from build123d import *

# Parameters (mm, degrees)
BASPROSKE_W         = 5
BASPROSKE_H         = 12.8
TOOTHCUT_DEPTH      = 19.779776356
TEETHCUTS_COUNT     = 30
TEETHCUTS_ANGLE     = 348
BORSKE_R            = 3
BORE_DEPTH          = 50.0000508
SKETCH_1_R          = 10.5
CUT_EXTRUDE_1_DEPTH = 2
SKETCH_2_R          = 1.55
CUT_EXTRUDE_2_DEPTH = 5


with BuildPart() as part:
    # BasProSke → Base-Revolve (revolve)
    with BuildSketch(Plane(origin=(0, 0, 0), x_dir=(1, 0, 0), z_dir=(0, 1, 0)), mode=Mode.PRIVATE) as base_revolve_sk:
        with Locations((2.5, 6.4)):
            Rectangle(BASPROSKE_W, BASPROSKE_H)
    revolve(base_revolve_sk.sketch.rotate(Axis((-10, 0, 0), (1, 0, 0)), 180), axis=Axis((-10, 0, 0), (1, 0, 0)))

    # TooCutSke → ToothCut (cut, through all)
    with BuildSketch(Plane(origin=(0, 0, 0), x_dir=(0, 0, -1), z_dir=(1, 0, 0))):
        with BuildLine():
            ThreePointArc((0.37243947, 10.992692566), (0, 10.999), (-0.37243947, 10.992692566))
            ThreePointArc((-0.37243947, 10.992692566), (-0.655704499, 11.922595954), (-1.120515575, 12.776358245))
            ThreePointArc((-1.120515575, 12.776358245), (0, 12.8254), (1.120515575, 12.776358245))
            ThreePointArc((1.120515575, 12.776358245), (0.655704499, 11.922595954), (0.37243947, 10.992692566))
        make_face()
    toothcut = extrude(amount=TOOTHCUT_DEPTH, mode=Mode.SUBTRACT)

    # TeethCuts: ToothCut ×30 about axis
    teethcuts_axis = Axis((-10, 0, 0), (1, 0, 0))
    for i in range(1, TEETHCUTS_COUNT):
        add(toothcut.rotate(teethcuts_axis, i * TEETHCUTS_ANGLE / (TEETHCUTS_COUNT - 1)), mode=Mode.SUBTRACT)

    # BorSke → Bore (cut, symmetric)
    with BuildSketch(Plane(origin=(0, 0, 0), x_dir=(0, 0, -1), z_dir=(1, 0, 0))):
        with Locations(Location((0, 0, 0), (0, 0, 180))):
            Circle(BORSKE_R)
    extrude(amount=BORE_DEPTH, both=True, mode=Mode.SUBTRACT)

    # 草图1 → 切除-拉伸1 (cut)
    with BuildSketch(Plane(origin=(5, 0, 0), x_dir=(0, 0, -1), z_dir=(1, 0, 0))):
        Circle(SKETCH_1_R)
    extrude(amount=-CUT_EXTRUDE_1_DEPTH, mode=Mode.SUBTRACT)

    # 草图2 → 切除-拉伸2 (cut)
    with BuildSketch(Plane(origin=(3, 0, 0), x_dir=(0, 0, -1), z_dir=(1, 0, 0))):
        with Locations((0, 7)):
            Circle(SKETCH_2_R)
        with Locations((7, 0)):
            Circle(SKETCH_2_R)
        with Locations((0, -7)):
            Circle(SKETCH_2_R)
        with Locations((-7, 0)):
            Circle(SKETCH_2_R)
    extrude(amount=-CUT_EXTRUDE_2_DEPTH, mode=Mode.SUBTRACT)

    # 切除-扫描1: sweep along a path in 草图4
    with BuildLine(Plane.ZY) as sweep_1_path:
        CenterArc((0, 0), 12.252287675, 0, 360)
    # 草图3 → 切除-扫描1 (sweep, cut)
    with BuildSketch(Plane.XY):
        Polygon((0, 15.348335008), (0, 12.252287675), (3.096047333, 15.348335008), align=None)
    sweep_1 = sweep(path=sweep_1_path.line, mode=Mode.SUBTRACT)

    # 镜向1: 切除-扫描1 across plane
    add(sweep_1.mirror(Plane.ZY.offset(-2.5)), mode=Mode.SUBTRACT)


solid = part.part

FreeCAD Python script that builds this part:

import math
import FreeCAD as App
import Part
import Sketcher
Q = App.Units.Quantity


def add_polygon(sketch, points):
    """Adds a closed chain of lines whose ends are joined by coincident constraints."""
    first, n = sketch.GeometryCount, len(points)
    for a, b in zip(points, points[1:] + points[:1]):
        sketch.addGeometry(Part.LineSegment(App.Vector(*a, 0), App.Vector(*b, 0)), False)
    for i in range(n):
        sketch.addConstraint(Sketcher.Constraint("Coincident", first + i, 2, first + (i + 1) % n, 1))

doc = App.newDocument("Part")
body = doc.addObject("PartDesign::Body", "Body")

# Sketch on XZ plane
sketch1 = doc.addObject("Sketcher::SketchObject", "Sketch")
body.addObject(sketch1)
sketch1.AttachmentSupport = (doc.XZ_Plane, [""])
sketch1.MapMode = "FlatFace"
add_polygon(sketch1, [(0, -12.8), (0, 0), (5, 0), (5, -12.8)])  # lines 0-3
sketch1.addConstraint([
    Sketcher.Constraint("Vertical", 0),
    Sketcher.Constraint("Horizontal", 1),
    Sketcher.Constraint("Vertical", 2),
    Sketcher.Constraint("Horizontal", 3),
    Sketcher.Constraint("Coincident", 0, 2, -1, 1),
    Sketcher.Constraint("DistanceX", 1, 1, 1, 2, Q("5 mm")),
    Sketcher.Constraint("DistanceY", 0, 1, 0, 2, Q("12.8 mm")),
])
revolution = doc.addObject("PartDesign::Revolution", "Revolution")
body.addObject(revolution)
revolution.Profile = sketch1
revolution.ReferenceAxis = (sketch1, ["H_Axis"])
revolution.Angle = 360

# Sketch on YZ plane
sketch2 = doc.addObject("Sketcher::SketchObject", "Sketch001")
body.addObject(sketch2)
sketch2.AttachmentSupport = (doc.YZ_Plane, [""])
sketch2.MapMode = "FlatFace"
sketch2.addGeometry([
    Part.ArcOfCircle(Part.Circle(App.Vector(-0.000001, 0, 0), App.Vector(0, 0, 1), 10.999001), math.radians(-1.940475), math.radians(1.940475)),
    Part.ArcOfCircle(Part.Circle(App.Vector(10.066124, -5.08216, 0), App.Vector(0, 0, 1), 4.8), math.radians(55.623246), math.radians(78.870033)),
    Part.ArcOfCircle(Part.Circle(App.Vector(0, 0, 0), App.Vector(0, 0, 1), 12.8254), math.radians(-5.012145), math.radians(5.012145)),
    Part.ArcOfCircle(Part.Circle(App.Vector(10.066124, 5.08216, 0), App.Vector(0, 0, 1), 4.8), math.radians(-78.870033), math.radians(-55.623246)),
], False)
sketch2.addConstraint([
    Sketcher.Constraint("Coincident", 0, 1, 1, 2),
    Sketcher.Constraint("Coincident", 1, 1, 2, 1),
    Sketcher.Constraint("Coincident", 2, 2, 3, 2),
    Sketcher.Constraint("Coincident", 3, 1, 0, 2),
    Sketcher.Constraint("Coincident", 0, 3, -1, 1),
    Sketcher.Constraint("Coincident", 2, 3, -1, 1),
    Sketcher.Constraint("Equal", 1, 3),
    Sketcher.Constraint("Symmetric", 1, 3, 3, 3, -1),
    Sketcher.Constraint("Radius", 1, Q("4.8 mm")),
    Sketcher.Constraint("Radius", 0, Q("10.999001 mm")),
    Sketcher.Constraint("Radius", 2, Q("12.8254 mm")),
    Sketcher.Constraint("DistanceY", 0, 1, 3, 3, Q("5.4546 mm")),
    Sketcher.Constraint("DistanceY", 1, 3, -1, 1, Q("5.08216 mm")),
])
pocket1 = doc.addObject("PartDesign::Pocket", "Pocket")
body.addObject(pocket1)
pocket1.Profile = sketch2
pocket1.Type = "ThroughAll"
pocket1.Reversed = True
doc.recompute()

polarpattern = doc.addObject("PartDesign::PolarPattern", "PolarPattern")
body.addObject(polarpattern)
polarpattern.Originals = [pocket1]
polarpattern.Axis = (doc.X_Axis, [""])
polarpattern.Angle = 360
polarpattern.Occurrences = 30
body.Tip = polarpattern

# Sketch on YZ plane
sketch3 = doc.addObject("Sketcher::SketchObject", "Sketch002")
body.addObject(sketch3)
sketch3.AttachmentSupport = (doc.YZ_Plane, [""])
sketch3.MapMode = "FlatFace"
sketch3.addGeometry(Part.Circle(App.Vector(0, 0, 0), App.Vector(0, 0, 1), 3), False)
sketch3.addConstraint([
    Sketcher.Constraint("Coincident", 0, 3, -1, 1),
    Sketcher.Constraint("Diameter", 0, Q("6 mm")),
])
pocket2 = doc.addObject("PartDesign::Pocket", "Pocket001")
body.addObject(pocket2)
pocket2.Profile = sketch3
pocket2.Length = 100.000102
pocket2.Midplane = True

# Sketch on YZ plane
sketch4 = doc.addObject("Sketcher::SketchObject", "Sketch003")
body.addObject(sketch4)
sketch4.AttachmentSupport = (doc.YZ_Plane, [""])
sketch4.MapMode = "FlatFace"
sketch4.AttachmentOffset = App.Placement(App.Vector(0, 0, 5), App.Rotation())
sketch4.addGeometry(Part.Circle(App.Vector(0, 0, 0), App.Vector(0, 0, 1), 10.5), False)
sketch4.addConstraint([
    Sketcher.Constraint("Coincident", 0, 3, -1, 1),
    Sketcher.Constraint("Diameter", 0, Q("21 mm")),
])
pocket3 = doc.addObject("PartDesign::Pocket", "Pocket002")
body.addObject(pocket3)
pocket3.Profile = sketch4
pocket3.Length = 2

# Sketch on YZ plane
sketch5 = doc.addObject("Sketcher::SketchObject", "Sketch004")
body.addObject(sketch5)
sketch5.AttachmentSupport = (doc.YZ_Plane, [""])
sketch5.MapMode = "FlatFace"
sketch5.AttachmentOffset = App.Placement(App.Vector(0, 0, 3), App.Rotation())
sketch5.addGeometry([
    Part.Circle(App.Vector(7, 0, 0), App.Vector(0, 0, 1), 1.55),
    Part.Circle(App.Vector(0, -7, 0), App.Vector(0, 0, 1), 1.55),
    Part.Circle(App.Vector(-7, 0, 0), App.Vector(0, 0, 1), 1.55),
    Part.Circle(App.Vector(0, 7, 0), App.Vector(0, 0, 1), 1.55),
], False)
sketch5.addConstraint([
    Sketcher.Constraint("Equal", 0, 1),
    Sketcher.Constraint("Equal", 1, 2),
    Sketcher.Constraint("Equal", 2, 3),
    Sketcher.Constraint("Symmetric", 0, 3, 2, 3, -1, 1),
    Sketcher.Constraint("Symmetric", 1, 3, 3, 3, -1, 1),
    Sketcher.Constraint("PointOnObject", 0, 3, -1),
    Sketcher.Constraint("PointOnObject", 1, 3, -2),
    Sketcher.Constraint("Diameter", 0, Q("3.1 mm")),
    Sketcher.Constraint("DistanceX", -1, 1, 0, 3, Q("7 mm")),
    Sketcher.Constraint("DistanceY", 1, 3, -1, 1, Q("7 mm")),
])
pocket4 = doc.addObject("PartDesign::Pocket", "Pocket003")
body.addObject(pocket4)
pocket4.Profile = sketch5
pocket4.Length = 5

# Sketch on XY plane
sketch6 = doc.addObject("Sketcher::SketchObject", "Sketch005")
body.addObject(sketch6)
sketch6.AttachmentSupport = (doc.XY_Plane, [""])
sketch6.MapMode = "FlatFace"
add_polygon(sketch6, [(0, 15.348335), (0, 12.252288), (3.096047, 15.348335)])  # lines 0-2
sketch6.addConstraint([
    Sketcher.Constraint("Vertical", 0),
    Sketcher.Constraint("Horizontal", 2),
    Sketcher.Constraint("PointOnObject", 0, 2, -2),
    Sketcher.Constraint("Equal", 2, 0),
    Sketcher.Constraint("DistanceX", 2, 2, 2, 1, Q("3.096047 mm")),
    Sketcher.Constraint("DistanceY", -1, 1, 0, 2, Q("12.252288 mm")),
])

# Sketch on YZ plane
sketch7 = doc.addObject("Sketcher::SketchObject", "Sketch006")
body.addObject(sketch7)
sketch7.AttachmentSupport = (doc.YZ_Plane, [""])
sketch7.MapMode = "FlatFace"
sketch7.addGeometry(Part.Circle(App.Vector(0, 0, 0), App.Vector(0, 0, 1), 12.252288), False)
sketch7.addConstraint([
    Sketcher.Constraint("Coincident", 0, 3, -1, 1),
    Sketcher.Constraint("Diameter", 0, Q("24.504575 mm")),
])
doc.recompute()

subtractivepipe = doc.addObject("PartDesign::SubtractivePipe", "SubtractivePipe")
body.addObject(subtractivepipe)
subtractivepipe.Profile = sketch6
subtractivepipe.Spine = (sketch7, ["Edge1"])
doc.recompute()

datumplane = doc.addObject("PartDesign::Plane", "DatumPlane")
body.addObject(datumplane)
datumplane.AttachmentSupport = (doc.YZ_Plane, [""])
datumplane.MapMode = "FlatFace"
datumplane.AttachmentOffset = App.Placement(App.Vector(0, 0, 2.5), App.Rotation())
mirrored = doc.addObject("PartDesign::Mirrored", "Mirrored")
body.addObject(mirrored)
mirrored.Originals = [subtractivepipe]
mirrored.MirrorPlane = (datumplane, [""])
body.Tip = mirrored

doc.recompute()
